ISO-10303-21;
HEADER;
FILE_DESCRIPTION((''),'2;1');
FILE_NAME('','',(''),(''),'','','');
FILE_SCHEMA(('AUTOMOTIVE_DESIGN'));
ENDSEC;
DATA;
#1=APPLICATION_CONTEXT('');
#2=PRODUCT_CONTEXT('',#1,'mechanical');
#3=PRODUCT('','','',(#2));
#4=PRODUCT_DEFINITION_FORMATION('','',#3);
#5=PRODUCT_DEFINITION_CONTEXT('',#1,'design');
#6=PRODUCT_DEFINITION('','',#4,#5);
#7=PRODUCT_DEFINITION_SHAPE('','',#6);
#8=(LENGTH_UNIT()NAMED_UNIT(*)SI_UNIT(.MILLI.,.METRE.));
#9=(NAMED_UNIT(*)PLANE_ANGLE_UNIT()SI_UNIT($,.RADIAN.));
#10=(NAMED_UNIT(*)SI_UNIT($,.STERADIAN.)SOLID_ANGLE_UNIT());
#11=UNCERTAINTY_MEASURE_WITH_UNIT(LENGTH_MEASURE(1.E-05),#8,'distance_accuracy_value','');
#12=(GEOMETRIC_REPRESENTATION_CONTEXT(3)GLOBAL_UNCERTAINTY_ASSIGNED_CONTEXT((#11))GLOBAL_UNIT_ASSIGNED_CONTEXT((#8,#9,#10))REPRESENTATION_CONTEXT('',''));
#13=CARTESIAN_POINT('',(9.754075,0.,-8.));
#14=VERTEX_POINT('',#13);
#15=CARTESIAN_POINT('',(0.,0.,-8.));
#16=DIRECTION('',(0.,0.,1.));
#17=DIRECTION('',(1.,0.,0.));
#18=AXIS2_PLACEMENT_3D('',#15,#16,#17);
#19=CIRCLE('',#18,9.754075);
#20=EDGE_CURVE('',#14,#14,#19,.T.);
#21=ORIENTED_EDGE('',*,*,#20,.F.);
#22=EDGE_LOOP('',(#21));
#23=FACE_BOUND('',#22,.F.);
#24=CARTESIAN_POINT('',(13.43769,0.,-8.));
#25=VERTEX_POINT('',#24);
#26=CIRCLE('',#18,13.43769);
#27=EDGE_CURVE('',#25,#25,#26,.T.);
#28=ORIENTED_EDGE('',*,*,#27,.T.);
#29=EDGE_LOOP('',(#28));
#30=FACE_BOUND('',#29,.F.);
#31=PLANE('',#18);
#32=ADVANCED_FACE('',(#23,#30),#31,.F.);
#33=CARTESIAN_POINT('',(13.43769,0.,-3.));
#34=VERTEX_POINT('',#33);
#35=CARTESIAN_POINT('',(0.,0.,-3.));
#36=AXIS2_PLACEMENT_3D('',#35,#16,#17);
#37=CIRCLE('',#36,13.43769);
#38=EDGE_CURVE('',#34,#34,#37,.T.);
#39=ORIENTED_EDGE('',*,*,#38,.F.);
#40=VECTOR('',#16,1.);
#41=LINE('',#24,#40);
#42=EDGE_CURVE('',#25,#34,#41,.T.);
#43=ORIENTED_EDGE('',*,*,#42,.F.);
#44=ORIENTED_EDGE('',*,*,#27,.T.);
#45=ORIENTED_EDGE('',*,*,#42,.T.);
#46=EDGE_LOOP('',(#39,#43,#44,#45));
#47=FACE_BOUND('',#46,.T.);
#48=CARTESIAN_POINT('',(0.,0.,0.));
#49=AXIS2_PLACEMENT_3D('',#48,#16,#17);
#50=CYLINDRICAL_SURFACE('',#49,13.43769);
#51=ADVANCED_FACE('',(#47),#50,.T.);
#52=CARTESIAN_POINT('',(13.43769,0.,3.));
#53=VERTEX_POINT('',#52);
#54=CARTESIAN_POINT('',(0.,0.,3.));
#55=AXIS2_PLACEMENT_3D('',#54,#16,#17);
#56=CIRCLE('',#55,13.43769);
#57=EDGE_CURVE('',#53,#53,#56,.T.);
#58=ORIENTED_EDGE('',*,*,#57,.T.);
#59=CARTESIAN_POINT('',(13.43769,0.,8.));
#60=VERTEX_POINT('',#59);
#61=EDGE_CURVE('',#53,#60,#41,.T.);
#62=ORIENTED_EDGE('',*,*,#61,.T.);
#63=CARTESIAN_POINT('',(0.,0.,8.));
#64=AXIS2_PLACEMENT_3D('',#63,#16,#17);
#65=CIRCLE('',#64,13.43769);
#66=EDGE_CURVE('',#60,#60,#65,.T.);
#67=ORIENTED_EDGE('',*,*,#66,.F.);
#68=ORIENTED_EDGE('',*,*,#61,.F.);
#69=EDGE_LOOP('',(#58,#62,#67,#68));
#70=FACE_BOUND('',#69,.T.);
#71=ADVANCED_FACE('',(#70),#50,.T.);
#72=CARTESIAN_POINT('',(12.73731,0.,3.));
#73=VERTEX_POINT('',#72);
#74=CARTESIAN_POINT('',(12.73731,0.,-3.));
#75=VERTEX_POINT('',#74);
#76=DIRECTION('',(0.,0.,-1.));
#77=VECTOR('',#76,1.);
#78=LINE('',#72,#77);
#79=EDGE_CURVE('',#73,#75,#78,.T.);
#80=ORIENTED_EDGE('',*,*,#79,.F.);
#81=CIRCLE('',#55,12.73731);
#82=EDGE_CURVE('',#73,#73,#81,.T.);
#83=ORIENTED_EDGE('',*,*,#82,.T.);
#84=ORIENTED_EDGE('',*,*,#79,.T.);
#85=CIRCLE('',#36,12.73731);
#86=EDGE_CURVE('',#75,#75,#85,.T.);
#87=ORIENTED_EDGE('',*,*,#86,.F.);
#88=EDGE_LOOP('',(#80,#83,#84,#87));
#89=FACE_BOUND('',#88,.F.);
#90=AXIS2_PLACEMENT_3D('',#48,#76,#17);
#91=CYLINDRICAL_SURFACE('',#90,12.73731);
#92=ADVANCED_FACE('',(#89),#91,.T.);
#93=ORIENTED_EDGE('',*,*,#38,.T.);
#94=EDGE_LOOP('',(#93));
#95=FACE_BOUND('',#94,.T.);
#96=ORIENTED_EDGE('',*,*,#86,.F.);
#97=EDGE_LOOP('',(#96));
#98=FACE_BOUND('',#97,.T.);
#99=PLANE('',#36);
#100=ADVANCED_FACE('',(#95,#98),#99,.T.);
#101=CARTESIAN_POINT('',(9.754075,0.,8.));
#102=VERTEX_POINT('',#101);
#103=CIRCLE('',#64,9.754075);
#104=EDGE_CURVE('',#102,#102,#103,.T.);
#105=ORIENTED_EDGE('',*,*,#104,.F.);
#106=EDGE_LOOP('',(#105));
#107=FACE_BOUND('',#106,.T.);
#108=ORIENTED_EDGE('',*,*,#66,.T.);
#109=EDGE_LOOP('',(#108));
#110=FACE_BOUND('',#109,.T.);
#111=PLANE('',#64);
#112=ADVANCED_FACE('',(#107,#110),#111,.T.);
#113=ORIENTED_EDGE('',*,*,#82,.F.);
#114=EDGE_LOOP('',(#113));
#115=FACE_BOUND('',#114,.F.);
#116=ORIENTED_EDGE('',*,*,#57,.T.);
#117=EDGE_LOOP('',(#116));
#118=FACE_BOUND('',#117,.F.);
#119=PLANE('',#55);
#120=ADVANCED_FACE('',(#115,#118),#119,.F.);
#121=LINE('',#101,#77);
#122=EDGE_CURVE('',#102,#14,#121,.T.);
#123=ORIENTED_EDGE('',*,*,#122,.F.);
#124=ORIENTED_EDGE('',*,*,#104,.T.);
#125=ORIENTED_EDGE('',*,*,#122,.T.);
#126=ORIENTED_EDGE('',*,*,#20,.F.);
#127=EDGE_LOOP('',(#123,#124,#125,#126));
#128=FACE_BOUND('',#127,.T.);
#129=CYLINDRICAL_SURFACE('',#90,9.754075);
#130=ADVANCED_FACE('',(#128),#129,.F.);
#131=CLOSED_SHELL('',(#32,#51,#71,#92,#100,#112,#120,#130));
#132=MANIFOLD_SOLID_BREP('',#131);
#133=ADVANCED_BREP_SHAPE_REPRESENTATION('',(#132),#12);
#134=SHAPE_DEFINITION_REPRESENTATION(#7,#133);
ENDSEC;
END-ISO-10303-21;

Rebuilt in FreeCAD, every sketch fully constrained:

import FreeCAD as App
import Part
import Sketcher
from FreeCAD import Vector
Q = App.Units.Quantity

doc = App.newDocument("Part")
body = doc.addObject("PartDesign::Body", "Body")

sketch1 = body.newObject("Sketcher::SketchObject", "Sketch")
sketch1.AttachmentSupport = (doc.getObject("XY_Plane"), [""])
sketch1.MapMode = "FlatFace"
sketch1.addGeometry([
    Part.Circle(Vector(0, 0, 0), Vector(0, 0, 1), 13),
    Part.Circle(Vector(0, 0, 0), Vector(0, 0, 1), 10),
], False)
sketch1.addConstraint([
    Sketcher.Constraint("Coincident", 0, 3, -1, 1),
    Sketcher.Constraint("Coincident", 1, 3, -1, 1),
    Sketcher.Constraint("Diameter", 0, Q("26.87538 mm")),
    Sketcher.Constraint("Diameter", 1, Q("19.50815 mm")),
])
pad1 = body.newObject("PartDesign::Pad", "Pad")
pad1.Profile = sketch1
pad1.Length = 16
pad1.Midplane = True

sketch2 = body.newObject("Sketcher::SketchObject", "Sketch001")
sketch2.AttachmentSupport = (doc.getObject("XY_Plane"), [""])
sketch2.MapMode = "FlatFace"
sketch2.addGeometry([
    Part.Circle(Vector(0, 0, 0), Vector(0, 0, 1), 22),
    Part.Circle(Vector(0, 0, 0), Vector(0, 0, 1), 13),
], False)
sketch2.addConstraint([
    Sketcher.Constraint("Coincident", 0, 3, -1, 1),
    Sketcher.Constraint("Coincident", 1, 3, -1, 1),
    Sketcher.Constraint("Diameter", 1, Q("25.47462 mm")),
    Sketcher.Constraint("Diameter", 0, Q("43.300404 mm")),
])
pocket1 = body.newObject("PartDesign::Pocket", "Pocket")
pocket1.Profile = sketch2
pocket1.Length = 6
pocket1.Midplane = True

doc.recompute()
